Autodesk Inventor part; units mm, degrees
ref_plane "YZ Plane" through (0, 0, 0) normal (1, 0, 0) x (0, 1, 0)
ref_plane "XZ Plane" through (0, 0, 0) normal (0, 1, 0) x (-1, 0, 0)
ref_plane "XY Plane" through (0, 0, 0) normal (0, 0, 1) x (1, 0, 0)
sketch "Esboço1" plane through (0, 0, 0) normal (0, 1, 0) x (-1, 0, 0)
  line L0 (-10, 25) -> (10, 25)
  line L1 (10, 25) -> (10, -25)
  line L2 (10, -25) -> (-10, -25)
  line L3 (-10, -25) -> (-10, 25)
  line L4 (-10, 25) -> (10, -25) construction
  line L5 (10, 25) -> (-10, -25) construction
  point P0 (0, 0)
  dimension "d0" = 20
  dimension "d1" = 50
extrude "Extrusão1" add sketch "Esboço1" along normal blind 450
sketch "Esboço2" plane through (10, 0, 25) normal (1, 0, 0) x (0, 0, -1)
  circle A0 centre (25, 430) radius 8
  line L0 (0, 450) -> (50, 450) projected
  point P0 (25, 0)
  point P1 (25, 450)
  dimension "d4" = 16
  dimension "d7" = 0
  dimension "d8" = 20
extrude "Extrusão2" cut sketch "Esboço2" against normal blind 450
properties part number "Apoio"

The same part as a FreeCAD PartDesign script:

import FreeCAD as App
import Part
import Sketcher


def add_polygon(sketch, points):
    """Adds a closed chain of lines whose ends are joined by coincident constraints."""
    first, n = sketch.GeometryCount, len(points)
    for a, b in zip(points, points[1:] + points[:1]):
        sketch.addGeometry(Part.LineSegment(App.Vector(*a, 0), App.Vector(*b, 0)), False)
    for i in range(n):
        sketch.addConstraint(Sketcher.Constraint("Coincident", first + i, 2, first + (i + 1) % n, 1))

doc = App.newDocument("Part")
body = doc.addObject("PartDesign::Body", "Body")

# Sketch on XZ plane
sketch1 = body.newObject("Sketcher::SketchObject", "Sketch")
sketch1.AttachmentSupport = (doc.getObject("XZ_Plane"), [""])
sketch1.MapMode = "FlatFace"
add_polygon(sketch1, [(-10, 25), (10, 25), (10, -25), (-10, -25)])  # lines 0-3
sketch1.addConstraint(Sketcher.Constraint("Horizontal", 0))
sketch1.addConstraint(Sketcher.Constraint("Vertical", 1))
sketch1.addConstraint(Sketcher.Constraint("Horizontal", 2))
sketch1.addConstraint(Sketcher.Constraint("Vertical", 3))
sketch1.addConstraint(Sketcher.Constraint("Symmetric", 0, 2, 2, 2, -1, 1))
sketch1.addConstraint(Sketcher.Constraint("DistanceX", 0, 1, 0, 2, 20.0))
sketch1.addConstraint(Sketcher.Constraint("DistanceY", 1, 2, 1, 1, 50.0))
pad1 = body.newObject("PartDesign::Pad", "Pad")
pad1.Profile = sketch1
pad1.Length = 450
pad1.Reversed = True

# Sketch on YZ plane
sketch2 = body.newObject("Sketcher::SketchObject", "Sketch001")
sketch2.AttachmentSupport = (doc.getObject("YZ_Plane"), [""])
sketch2.MapMode = "FlatFace"
sketch2.AttachmentOffset = App.Placement(App.Vector(0, 0, 10), App.Rotation())
sketch2.addGeometry(Part.Circle(App.Vector(430, 0, 0), App.Vector(0, 0, 1), 8), False)
sketch2.addConstraint(Sketcher.Constraint("PointOnObject", 0, 3, -1))
sketch2.addConstraint(Sketcher.Constraint("Diameter", 0, 16.0))
sketch2.addConstraint(Sketcher.Constraint("DistanceX", -1, 1, 0, 3, 430.0))
pocket1 = body.newObject("PartDesign::Pocket", "Pocket")
pocket1.Profile = sketch2
pocket1.Length = 450

doc.recompute()
